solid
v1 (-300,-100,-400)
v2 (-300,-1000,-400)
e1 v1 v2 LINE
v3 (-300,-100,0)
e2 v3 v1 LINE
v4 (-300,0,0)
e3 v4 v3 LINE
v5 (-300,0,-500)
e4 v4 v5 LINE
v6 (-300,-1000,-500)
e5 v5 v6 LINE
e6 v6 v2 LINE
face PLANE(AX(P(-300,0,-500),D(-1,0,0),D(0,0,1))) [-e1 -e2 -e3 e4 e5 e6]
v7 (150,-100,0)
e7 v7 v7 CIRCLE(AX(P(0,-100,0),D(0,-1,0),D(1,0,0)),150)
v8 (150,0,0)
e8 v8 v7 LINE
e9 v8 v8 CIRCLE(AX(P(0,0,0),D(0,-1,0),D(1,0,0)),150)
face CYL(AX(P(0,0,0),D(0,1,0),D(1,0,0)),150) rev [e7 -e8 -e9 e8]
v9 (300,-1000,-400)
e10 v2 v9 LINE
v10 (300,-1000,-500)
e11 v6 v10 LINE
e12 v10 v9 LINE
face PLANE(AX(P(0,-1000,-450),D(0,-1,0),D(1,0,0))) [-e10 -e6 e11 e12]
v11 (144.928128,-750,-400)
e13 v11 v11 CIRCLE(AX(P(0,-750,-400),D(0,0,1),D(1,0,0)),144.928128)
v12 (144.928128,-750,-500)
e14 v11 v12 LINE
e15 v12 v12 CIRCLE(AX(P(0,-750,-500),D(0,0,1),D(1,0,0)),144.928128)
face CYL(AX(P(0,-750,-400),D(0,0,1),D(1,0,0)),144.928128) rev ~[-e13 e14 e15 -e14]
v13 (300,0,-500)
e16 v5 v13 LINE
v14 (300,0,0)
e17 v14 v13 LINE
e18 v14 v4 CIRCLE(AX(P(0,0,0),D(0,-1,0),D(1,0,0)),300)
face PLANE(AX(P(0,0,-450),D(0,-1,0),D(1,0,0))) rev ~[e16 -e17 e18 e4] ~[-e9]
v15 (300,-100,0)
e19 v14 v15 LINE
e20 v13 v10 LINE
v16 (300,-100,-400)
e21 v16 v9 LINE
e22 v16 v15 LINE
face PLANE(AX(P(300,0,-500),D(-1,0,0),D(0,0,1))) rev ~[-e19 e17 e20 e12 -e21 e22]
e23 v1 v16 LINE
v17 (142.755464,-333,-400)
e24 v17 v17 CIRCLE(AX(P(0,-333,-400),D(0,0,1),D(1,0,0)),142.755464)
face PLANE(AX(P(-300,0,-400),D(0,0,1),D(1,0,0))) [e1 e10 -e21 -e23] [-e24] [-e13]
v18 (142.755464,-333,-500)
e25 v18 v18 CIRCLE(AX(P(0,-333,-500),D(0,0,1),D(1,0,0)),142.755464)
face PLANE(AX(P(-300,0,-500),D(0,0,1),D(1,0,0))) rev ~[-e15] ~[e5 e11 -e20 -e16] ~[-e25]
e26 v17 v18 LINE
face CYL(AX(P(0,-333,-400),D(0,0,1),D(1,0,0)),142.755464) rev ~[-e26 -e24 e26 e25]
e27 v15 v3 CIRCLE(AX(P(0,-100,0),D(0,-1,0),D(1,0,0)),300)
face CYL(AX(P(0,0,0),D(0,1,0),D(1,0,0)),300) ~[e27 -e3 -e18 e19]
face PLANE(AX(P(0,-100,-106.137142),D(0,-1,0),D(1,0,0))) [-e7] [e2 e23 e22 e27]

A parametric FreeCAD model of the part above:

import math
import FreeCAD as App
import Part
import Sketcher

V = App.Vector
Q = App.Units.Quantity


def add_polygon(sketch, points):
    """Adds a closed chain of lines whose ends are joined by coincident constraints."""
    first, n = sketch.GeometryCount, len(points)
    for a, b in zip(points, points[1:] + points[:1]):
        sketch.addGeometry(Part.LineSegment(App.Vector(*a, 0), App.Vector(*b, 0)), False)
    for i in range(n):
        sketch.addConstraint(Sketcher.Constraint("Coincident", first + i, 2, first + (i + 1) % n, 1))

doc = App.newDocument("Part")
body = doc.addObject("PartDesign::Body", "Body")

sketch1 = doc.addObject("Sketcher::SketchObject", "Sketch")
body.addObject(sketch1)
sketch1.AttachmentSupport = (doc.XZ_Plane, [""])
sketch1.MapMode = "FlatFace"
sketch1.addGeometry([
    Part.LineSegment(V(300, -400, 0), V(300, 0, 0)),
    Part.ArcOfCircle(Part.Circle(V(0, 0, 0), V(0, 0, 1), 300), math.radians(0), math.radians(180)),
    Part.LineSegment(V(-300, 0, 0), V(-300, -400, 0)),
    Part.LineSegment(V(-300, -400, 0), V(300, -400, 0)),
    Part.Circle(V(0, 0, 0), V(0, 0, 1), 150),
], False)
sketch1.addConstraint([
    Sketcher.Constraint("Tangent", 0, 2, 1, 1),
    Sketcher.Constraint("Tangent", 1, 2, 2, 1),
    Sketcher.Constraint("Coincident", 2, 2, 3, 1),
    Sketcher.Constraint("Coincident", 3, 2, 0, 1),
    Sketcher.Constraint("Vertical", 0),
    Sketcher.Constraint("Vertical", 2),
    Sketcher.Constraint("Horizontal", 3),
    Sketcher.Constraint("Coincident", 1, 3, -1, 1),
    Sketcher.Constraint("Coincident", 4, 3, -1, 1),
    Sketcher.Constraint("Diameter", 4, Q("300 mm")),
    Sketcher.Constraint("Radius", 1, Q("300 mm")),
    Sketcher.Constraint("DistanceY", 0, 1, 0, 2, Q("400 mm")),
])
pad1 = doc.addObject("PartDesign::Pad", "Pad")
body.addObject(pad1)
pad1.Profile = sketch1
pad1.Length = 100

sketch2 = doc.addObject("Sketcher::SketchObject", "Sketch001")
body.addObject(sketch2)
sketch2.AttachmentSupport = (doc.XZ_Plane, [""])
sketch2.MapMode = "FlatFace"
add_polygon(sketch2, [(-300, -400), (-300, -500), (300, -500), (300, -400)])
sketch2.addConstraint([
    Sketcher.Constraint("Vertical", 0),
    Sketcher.Constraint("Horizontal", 1),
    Sketcher.Constraint("Vertical", 2),
    Sketcher.Constraint("Horizontal", 3),
    Sketcher.Constraint("DistanceX", 1, 1, 1, 2, Q("600 mm")),
    Sketcher.Constraint("DistanceY", 0, 2, 0, 1, Q("100 mm")),
    Sketcher.Constraint("DistanceX", 0, 2, -1, 1, Q("300 mm")),
    Sketcher.Constraint("DistanceY", 0, 2, -1, 1, Q("500 mm")),
])
pad2 = doc.addObject("PartDesign::Pad", "Pad001")
body.addObject(pad2)
pad2.Profile = sketch2
pad2.Length = 1000

sketch3 = doc.addObject("Sketcher::SketchObject", "Sketch002")
body.addObject(sketch3)
sketch3.AttachmentSupport = (doc.XY_Plane, [""])
sketch3.MapMode = "FlatFace"
sketch3.AttachmentOffset = App.Placement(V(0, 0, -400), App.Rotation())
sketch3.addGeometry([
    Part.Circle(V(0, -333, 0), V(0, 0, 1), 143),
    Part.Circle(V(0, -750, 0), V(0, 0, 1), 145),
], False)
sketch3.addConstraint([
    Sketcher.Constraint("PointOnObject", 0, 3, -2),
    Sketcher.Constraint("PointOnObject", 1, 3, -2),
    Sketcher.Constraint("DistanceY", 0, 3, -1, 1, Q("333 mm")),
    Sketcher.Constraint("DistanceY", 1, 3, -1, 1, Q("750 mm")),
    Sketcher.Constraint("Diameter", 0, Q("285.510928 mm")),
    Sketcher.Constraint("Diameter", 1, Q("289.856256 mm")),
])
pocket1 = doc.addObject("PartDesign::Pocket", "Pocket")
body.addObject(pocket1)
pocket1.Profile = sketch3
pocket1.Length = 100

doc.recompute()
